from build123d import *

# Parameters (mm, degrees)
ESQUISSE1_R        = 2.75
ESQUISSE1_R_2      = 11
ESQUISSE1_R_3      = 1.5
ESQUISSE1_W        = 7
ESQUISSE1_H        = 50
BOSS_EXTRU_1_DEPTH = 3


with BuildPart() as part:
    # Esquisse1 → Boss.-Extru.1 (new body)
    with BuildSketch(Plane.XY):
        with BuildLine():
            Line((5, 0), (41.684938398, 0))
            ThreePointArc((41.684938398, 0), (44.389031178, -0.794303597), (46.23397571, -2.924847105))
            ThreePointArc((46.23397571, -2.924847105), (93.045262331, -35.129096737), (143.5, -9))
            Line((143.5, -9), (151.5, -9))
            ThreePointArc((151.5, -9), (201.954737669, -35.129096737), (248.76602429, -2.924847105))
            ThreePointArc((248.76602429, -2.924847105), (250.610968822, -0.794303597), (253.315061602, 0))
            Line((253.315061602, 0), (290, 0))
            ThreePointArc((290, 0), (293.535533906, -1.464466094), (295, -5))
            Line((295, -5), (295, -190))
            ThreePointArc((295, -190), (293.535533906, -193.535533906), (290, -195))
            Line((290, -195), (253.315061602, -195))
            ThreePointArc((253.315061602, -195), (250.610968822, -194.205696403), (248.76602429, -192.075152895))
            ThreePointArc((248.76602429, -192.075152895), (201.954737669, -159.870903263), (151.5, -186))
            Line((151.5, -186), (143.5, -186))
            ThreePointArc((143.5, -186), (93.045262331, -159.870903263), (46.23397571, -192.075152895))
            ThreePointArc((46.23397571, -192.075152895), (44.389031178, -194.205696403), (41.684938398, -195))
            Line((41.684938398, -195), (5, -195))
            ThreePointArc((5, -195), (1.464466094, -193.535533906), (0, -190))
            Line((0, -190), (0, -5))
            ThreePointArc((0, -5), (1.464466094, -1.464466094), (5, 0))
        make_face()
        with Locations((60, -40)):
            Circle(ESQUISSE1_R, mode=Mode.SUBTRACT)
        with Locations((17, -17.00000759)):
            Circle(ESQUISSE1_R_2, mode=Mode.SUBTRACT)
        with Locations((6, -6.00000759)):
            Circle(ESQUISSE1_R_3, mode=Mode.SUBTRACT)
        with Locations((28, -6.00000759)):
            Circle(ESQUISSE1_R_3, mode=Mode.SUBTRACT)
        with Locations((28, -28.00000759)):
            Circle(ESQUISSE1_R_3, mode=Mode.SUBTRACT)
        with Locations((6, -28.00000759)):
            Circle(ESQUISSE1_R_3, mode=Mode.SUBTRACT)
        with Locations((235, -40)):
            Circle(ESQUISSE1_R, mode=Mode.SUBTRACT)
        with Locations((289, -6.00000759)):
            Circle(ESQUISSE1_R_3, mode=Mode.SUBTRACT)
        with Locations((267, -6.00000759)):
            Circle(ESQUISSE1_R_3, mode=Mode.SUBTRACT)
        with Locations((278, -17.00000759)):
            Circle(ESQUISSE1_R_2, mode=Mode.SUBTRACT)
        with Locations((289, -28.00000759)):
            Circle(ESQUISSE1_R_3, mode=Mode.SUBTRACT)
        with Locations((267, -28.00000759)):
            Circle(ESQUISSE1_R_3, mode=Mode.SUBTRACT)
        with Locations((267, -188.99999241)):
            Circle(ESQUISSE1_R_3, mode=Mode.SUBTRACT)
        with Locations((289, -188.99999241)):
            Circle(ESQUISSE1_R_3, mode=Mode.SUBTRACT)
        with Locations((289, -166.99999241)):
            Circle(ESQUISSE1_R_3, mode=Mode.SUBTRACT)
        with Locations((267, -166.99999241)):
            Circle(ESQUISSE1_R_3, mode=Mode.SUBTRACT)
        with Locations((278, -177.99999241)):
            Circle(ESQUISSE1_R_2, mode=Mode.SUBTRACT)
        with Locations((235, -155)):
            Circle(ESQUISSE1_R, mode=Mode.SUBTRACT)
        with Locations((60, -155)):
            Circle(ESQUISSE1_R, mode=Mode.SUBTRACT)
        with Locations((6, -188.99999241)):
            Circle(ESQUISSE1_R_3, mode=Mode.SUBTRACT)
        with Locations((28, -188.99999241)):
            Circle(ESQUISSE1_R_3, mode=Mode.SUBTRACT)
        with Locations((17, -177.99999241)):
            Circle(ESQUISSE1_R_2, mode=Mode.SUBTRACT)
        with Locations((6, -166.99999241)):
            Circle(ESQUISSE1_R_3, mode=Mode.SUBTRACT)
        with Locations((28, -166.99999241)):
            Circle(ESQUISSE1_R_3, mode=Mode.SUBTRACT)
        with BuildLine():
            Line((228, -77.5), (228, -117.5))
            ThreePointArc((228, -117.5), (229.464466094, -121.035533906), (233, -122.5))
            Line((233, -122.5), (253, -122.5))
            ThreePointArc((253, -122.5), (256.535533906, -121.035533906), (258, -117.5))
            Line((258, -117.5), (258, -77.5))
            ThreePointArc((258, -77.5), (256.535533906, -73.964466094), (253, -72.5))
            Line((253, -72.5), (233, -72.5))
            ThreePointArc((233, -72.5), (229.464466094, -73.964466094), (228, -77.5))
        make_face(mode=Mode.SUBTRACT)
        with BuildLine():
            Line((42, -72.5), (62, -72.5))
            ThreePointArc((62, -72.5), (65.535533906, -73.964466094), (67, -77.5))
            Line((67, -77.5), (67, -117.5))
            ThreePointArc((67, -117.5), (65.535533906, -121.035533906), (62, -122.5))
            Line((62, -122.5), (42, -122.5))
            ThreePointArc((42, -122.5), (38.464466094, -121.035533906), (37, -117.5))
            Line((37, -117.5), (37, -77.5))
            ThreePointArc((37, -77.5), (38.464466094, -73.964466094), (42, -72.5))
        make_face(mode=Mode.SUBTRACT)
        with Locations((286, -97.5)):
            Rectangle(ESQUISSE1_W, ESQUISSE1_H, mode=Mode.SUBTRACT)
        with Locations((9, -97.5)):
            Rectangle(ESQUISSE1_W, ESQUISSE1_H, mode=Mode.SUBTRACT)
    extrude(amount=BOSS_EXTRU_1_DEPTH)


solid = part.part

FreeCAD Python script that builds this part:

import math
import FreeCAD as App
import Part
import Sketcher

doc = App.newDocument("Part")
body = doc.addObject("PartDesign::Body", "Body")

# Sketch on XY plane
sketch1 = body.newObject("Sketcher::SketchObject", "Sketch")
sketch1.AttachmentSupport = (doc.getObject("XY_Plane"), [""])
sketch1.MapMode = "FlatFace"
sketch1.addGeometry(Part.LineSegment(App.Vector(41.7, 0, 0), App.Vector(5, 0, 0)), False)
sketch1.addGeometry(Part.ArcOfCircle(Part.Circle(App.Vector(5, -5, 0), App.Vector(0, 0, 1), 5), math.radians(90), math.radians(180)), False)
sketch1.addGeometry(Part.LineSegment(App.Vector(0, -5, 0), App.Vector(0, -190, 0)), False)
sketch1.addGeometry(Part.ArcOfCircle(Part.Circle(App.Vector(5, -190, 0), App.Vector(0, 0, 1), 5), math.radians(180), math.radians(270)), False)
sketch1.addGeometry(Part.LineSegment(App.Vector(5, -195, 0), App.Vector(41.7, -195, 0)), False)
sketch1.addGeometry(Part.ArcOfCircle(Part.Circle(App.Vector(41.7, -190, 0), App.Vector(0, 0, 1), 5), math.radians(-90), math.radians(-25)), False)
sketch1.addGeometry(Part.ArcOfCircle(Part.Circle(App.Vector(96.5, -215, 0), App.Vector(0, 0, 1), 55.2), math.radians(32), math.radians(155)), False)
sketch1.addGeometry(Part.LineSegment(App.Vector(143.5, -186, 0), App.Vector(151.5, -186, 0)), False)
sketch1.addGeometry(Part.ArcOfCircle(Part.Circle(App.Vector(198.5, -215, 0), App.Vector(0, 0, 1), 55.2), math.radians(25), math.radians(148)), False)
sketch1.addGeometry(Part.ArcOfCircle(Part.Circle(App.Vector(253.3, -190, 0), App.Vector(0, 0, 1), 5), math.radians(-155), math.radians(-90)), False)
sketch1.addGeometry(Part.LineSegment(App.Vector(253.3, -195, 0), App.Vector(290, -195, 0)), False)
sketch1.addGeometry(Part.ArcOfCircle(Part.Circle(App.Vector(290, -190, 0), App.Vector(0, 0, 1), 5), math.radians(-90), math.radians(0)), False)
sketch1.addGeometry(Part.LineSegment(App.Vector(295, -190, 0), App.Vector(295, -5, 0)), False)
sketch1.addGeometry(Part.ArcOfCircle(Part.Circle(App.Vector(290, -5, 0), App.Vector(0, 0, 1), 5), math.radians(0), math.radians(90)), False)
sketch1.addGeometry(Part.LineSegment(App.Vector(290, 0, 0), App.Vector(253.3, 0, 0)), False)
sketch1.addGeometry(Part.ArcOfCircle(Part.Circle(App.Vector(253.3, -5, 0), App.Vector(0, 0, 1), 5), math.radians(90), math.radians(155)), False)
sketch1.addGeometry(Part.ArcOfCircle(Part.Circle(App.Vector(198.5, 20, 0), App.Vector(0, 0, 1), 55.2), math.radians(-148), math.radians(-25)), False)
sketch1.addGeometry(Part.LineSegment(App.Vector(151.5, -9, 0), App.Vector(143.5, -9, 0)), False)
sketch1.addGeometry(Part.ArcOfCircle(Part.Circle(App.Vector(96.5, 20, 0), App.Vector(0, 0, 1), 55.2), math.radians(-155), math.radians(-32)), False)
sketch1.addGeometry(Part.ArcOfCircle(Part.Circle(App.Vector(41.7, -5, 0), App.Vector(0, 0, 1), 5), math.radians(25), math.radians(90)), False)
sketch1.addGeometry(Part.Circle(App.Vector(289, -189, 0), App.Vector(0, 0, 1), 1.5), False)
sketch1.addGeometry(Part.Circle(App.Vector(267, -189, 0), App.Vector(0, 0, 1), 1.5), False)
sketch1.addGeometry(Part.Circle(App.Vector(278, -178, 0), App.Vector(0, 0, 1), 11), False)
sketch1.addGeometry(Part.Circle(App.Vector(289, -167, 0), App.Vector(0, 0, 1), 1.5), False)
sketch1.addGeometry(Part.Circle(App.Vector(267, -167, 0), App.Vector(0, 0, 1), 1.5), False)
sketch1.addGeometry(Part.Circle(App.Vector(235, -155, 0), App.Vector(0, 0, 1), 2.8), False)
sketch1.addGeometry(Part.Circle(App.Vector(28, -189, 0), App.Vector(0, 0, 1), 1.5), False)
sketch1.addGeometry(Part.Circle(App.Vector(6, -189, 0), App.Vector(0, 0, 1), 1.5), False)
sketch1.addGeometry(Part.Circle(App.Vector(17, -178, 0), App.Vector(0, 0, 1), 11), False)
sketch1.addGeometry(Part.Circle(App.Vector(60, -155, 0), App.Vector(0, 0, 1), 2.8), False)
sketch1.addGeometry(Part.Circle(App.Vector(28, -167, 0), App.Vector(0, 0, 1), 1.5), False)
sketch1.addGeometry(Part.Circle(App.Vector(6, -167, 0), App.Vector(0, 0, 1), 1.5), False)
sketch1.addGeometry(Part.LineSegment(App.Vector(282.5, -122.5, 0), App.Vector(282.5, -72.5, 0)), False)
sketch1.addGeometry(Part.LineSegment(App.Vector(282.5, -72.5, 0), App.Vector(289.5, -72.5, 0)), False)
sketch1.addGeometry(Part.LineSegment(App.Vector(289.5, -72.5, 0), App.Vector(289.5, -122.5, 0)), False)
sketch1.addGeometry(Part.LineSegment(App.Vector(289.5, -122.5, 0), App.Vector(282.5, -122.5, 0)), False)
sketch1.addGeometry(Part.ArcOfCircle(Part.Circle(App.Vector(233, -77.5, 0), App.Vector(0, 0, 1), 5), math.radians(90), math.radians(180)), False)
sketch1.addGeometry(Part.LineSegment(App.Vector(233, -72.5, 0), App.Vector(253, -72.5, 0)), False)
sketch1.addGeometry(Part.ArcOfCircle(Part.Circle(App.Vector(253, -77.5, 0), App.Vector(0, 0, 1), 5), math.radians(0), math.radians(90)), False)
sketch1.addGeometry(Part.LineSegment(App.Vector(258, -77.5, 0), App.Vector(258, -117.5, 0)), False)
sketch1.addGeometry(Part.ArcOfCircle(Part.Circle(App.Vector(253, -117.5, 0), App.Vector(0, 0, 1), 5), math.radians(-90), math.radians(0)), False)
sketch1.addGeometry(Part.LineSegment(App.Vector(253, -122.5, 0), App.Vector(233, -122.5, 0)), False)
sketch1.addGeometry(Part.ArcOfCircle(Part.Circle(App.Vector(233, -117.5, 0), App.Vector(0, 0, 1), 5), math.radians(180), math.radians(270)), False)
sketch1.addGeometry(Part.LineSegment(App.Vector(228, -117.5, 0), App.Vector(228, -77.5, 0)), False)
sketch1.addGeometry(Part.Circle(App.Vector(289, -28, 0), App.Vector(0, 0, 1), 1.5), False)
sketch1.addGeometry(Part.Circle(App.Vector(267, -28, 0), App.Vector(0, 0, 1), 1.5), False)
sketch1.addGeometry(Part.Circle(App.Vector(235, -40, 0), App.Vector(0, 0, 1), 2.8), False)
sketch1.addGeometry(Part.Circle(App.Vector(278, -17, 0), App.Vector(0, 0, 1), 11), False)
sketch1.addGeometry(Part.Circle(App.Vector(289, -6, 0), App.Vector(0, 0, 1), 1.5), False)
sketch1.addGeometry(Part.Circle(App.Vector(267, -6, 0), App.Vector(0, 0, 1), 1.5), False)
sketch1.addGeometry(Part.LineSegment(App.Vector(42, -72.5, 0), App.Vector(62, -72.5, 0)), False)
sketch1.addGeometry(Part.ArcOfCircle(Part.Circle(App.Vector(62, -77.5, 0), App.Vector(0, 0, 1), 5), math.radians(0), math.radians(90)), False)
sketch1.addGeometry(Part.LineSegment(App.Vector(67, -77.5, 0), App.Vector(67, -117.5, 0)), False)
sketch1.addGeometry(Part.ArcOfCircle(Part.Circle(App.Vector(62, -117.5, 0), App.Vector(0, 0, 1), 5), math.radians(-90), math.radians(0)), False)
sketch1.addGeometry(Part.LineSegment(App.Vector(62, -122.5, 0), App.Vector(42, -122.5, 0)), False)
sketch1.addGeometry(Part.ArcOfCircle(Part.Circle(App.Vector(42, -117.5, 0), App.Vector(0, 0, 1), 5), math.radians(180), math.radians(270)), False)
sketch1.addGeometry(Part.LineSegment(App.Vector(37, -117.5, 0), App.Vector(37, -77.5, 0)), False)
sketch1.addGeometry(Part.ArcOfCircle(Part.Circle(App.Vector(42, -77.5, 0), App.Vector(0, 0, 1), 5), math.radians(90), math.radians(180)), False)
sketch1.addGeometry(Part.LineSegment(App.Vector(5.5, -122.5, 0), App.Vector(5.5, -72.5, 0)), False)
sketch1.addGeometry(Part.LineSegment(App.Vector(5.5, -72.5, 0), App.Vector(12.5, -72.5, 0)), False)
sketch1.addGeometry(Part.LineSegment(App.Vector(12.5, -72.5, 0), App.Vector(12.5, -122.5, 0)), False)
sketch1.addGeometry(Part.LineSegment(App.Vector(12.5, -122.5, 0), App.Vector(5.5, -122.5, 0)), False)
sketch1.addGeometry(Part.Circle(App.Vector(60, -40, 0), App.Vector(0, 0, 1), 2.8), False)
sketch1.addGeometry(Part.Circle(App.Vector(28, -28, 0), App.Vector(0, 0, 1), 1.5), False)
sketch1.addGeometry(Part.Circle(App.Vector(6, -28, 0), App.Vector(0, 0, 1), 1.5), False)
sketch1.addGeometry(Part.Circle(App.Vector(17, -17, 0), App.Vector(0, 0, 1), 11), False)
sketch1.addGeometry(Part.Circle(App.Vector(28, -6, 0), App.Vector(0, 0, 1), 1.5), False)
sketch1.addGeometry(Part.Circle(App.Vector(6, -6, 0), App.Vector(0, 0, 1), 1.5), False)
sketch1.addConstraint(Sketcher.Constraint("Tangent", 0, 2, 1, 1))
sketch1.addConstraint(Sketcher.Constraint("Tangent", 1, 2, 2, 1))
sketch1.addConstraint(Sketcher.Constraint("Tangent", 2, 2, 3, 1))
sketch1.addConstraint(Sketcher.Constraint("Tangent", 3, 2, 4, 1))
sketch1.addConstraint(Sketcher.Constraint("Tangent", 4, 2, 5, 1))
sketch1.addConstraint(Sketcher.Constraint("Tangent", 5, 2, 6, 2))
sketch1.addConstraint(Sketcher.Constraint("Coincident", 6, 1, 7, 1))
sketch1.addConstraint(Sketcher.Constraint("Coincident", 7, 2, 8, 2))
sketch1.addConstraint(Sketcher.Constraint("Tangent", 8, 1, 9, 1))
sketch1.addConstraint(Sketcher.Constraint("Tangent", 9, 2, 10, 1))
sketch1.addConstraint(Sketcher.Constraint("Tangent", 10, 2, 11, 1))
sketch1.addConstraint(Sketcher.Constraint("Tangent", 11, 2, 12, 1))
sketch1.addConstraint(Sketcher.Constraint("Tangent", 12, 2, 13, 1))
sketch1.addConstraint(Sketcher.Constraint("Tangent", 13, 2, 14, 1))
sketch1.addConstraint(Sketcher.Constraint("Tangent", 14, 2, 15, 1))
sketch1.addConstraint(Sketcher.Constraint("Tangent", 15, 2, 16, 2))
sketch1.addConstraint(Sketcher.Constraint("Coincident", 16, 1, 17, 1))
sketch1.addConstraint(Sketcher.Constraint("Coincident", 17, 2, 18, 2))
sketch1.addConstraint(Sketcher.Constraint("Tangent", 18, 1, 19, 1))
sketch1.addConstraint(Sketcher.Constraint("Tangent", 19, 2, 0, 1))
sketch1.addConstraint(Sketcher.Constraint("Coincident", 32, 2, 33, 1))
sketch1.addConstraint(Sketcher.Constraint("Coincident", 33, 2, 34, 1))
sketch1.addConstraint(Sketcher.Constraint("Coincident", 34, 2, 35, 1))
sketch1.addConstraint(Sketcher.Constraint("Coincident", 35, 2, 32, 1))
sketch1.addConstraint(Sketcher.Constraint("Tangent", 36, 1, 37, 1))
sketch1.addConstraint(Sketcher.Constraint("Tangent", 37, 2, 38, 2))
sketch1.addConstraint(Sketcher.Constraint("Tangent", 38, 1, 39, 1))
sketch1.addConstraint(Sketcher.Constraint("Tangent", 39, 2, 40, 2))
sketch1.addConstraint(Sketcher.Constraint("Tangent", 40, 1, 41, 1))
sketch1.addConstraint(Sketcher.Constraint("Tangent", 41, 2, 42, 2))
sketch1.addConstraint(Sketcher.Constraint("Tangent", 42, 1, 43, 1))
sketch1.addConstraint(Sketcher.Constraint("Tangent", 43, 2, 36, 2))
sketch1.addConstraint(Sketcher.Constraint("Tangent", 50, 2, 51, 2))
sketch1.addConstraint(Sketcher.Constraint("Tangent", 51, 1, 52, 1))
sketch1.addConstraint(Sketcher.Constraint("Tangent", 52, 2, 53, 2))
sketch1.addConstraint(Sketcher.Constraint("Tangent", 53, 1, 54, 1))
sketch1.addConstraint(Sketcher.Constraint("Tangent", 54, 2, 55, 2))
sketch1.addConstraint(Sketcher.Constraint("Tangent", 55, 1, 56, 1))
sketch1.addConstraint(Sketcher.Constraint("Tangent", 56, 2, 57, 2))
sketch1.addConstraint(Sketcher.Constraint("Tangent", 57, 1, 50, 1))
sketch1.addConstraint(Sketcher.Constraint("Coincident", 58, 2, 59, 1))
sketch1.addConstraint(Sketcher.Constraint("Coincident", 59, 2, 60, 1))
sketch1.addConstraint(Sketcher.Constraint("Coincident", 60, 2, 61, 1))
sketch1.addConstraint(Sketcher.Constraint("Coincident", 61, 2, 58, 1))
sketch1.addConstraint(Sketcher.Constraint("Horizontal", 0))
sketch1.addConstraint(Sketcher.Constraint("Vertical", 2))
sketch1.addConstraint(Sketcher.Constraint("Horizontal", 4))
sketch1.addConstraint(Sketcher.Constraint("Horizontal", 7))
sketch1.addConstraint(Sketcher.Constraint("Horizontal", 10))
sketch1.addConstraint(Sketcher.Constraint("Vertical", 12))
sketch1.addConstraint(Sketcher.Constraint("Horizontal", 14))
sketch1.addConstraint(Sketcher.Constraint("Horizontal", 17))
sketch1.addConstraint(Sketcher.Constraint("Vertical", 32))
sketch1.addConstraint(Sketcher.Constraint("Horizontal", 33))
sketch1.addConstraint(Sketcher.Constraint("Vertical", 34))
sketch1.addConstraint(Sketcher.Constraint("Horizontal", 35))
sketch1.addConstraint(Sketcher.Constraint("Horizontal", 37))
sketch1.addConstraint(Sketcher.Constraint("Vertical", 39))
sketch1.addConstraint(Sketcher.Constraint("Horizontal", 41))
sketch1.addConstraint(Sketcher.Constraint("Vertical", 43))
sketch1.addConstraint(Sketcher.Constraint("Horizontal", 50))
sketch1.addConstraint(Sketcher.Constraint("Vertical", 52))
sketch1.addConstraint(Sketcher.Constraint("Horizontal", 54))
sketch1.addConstraint(Sketcher.Constraint("Vertical", 56))
sketch1.addConstraint(Sketcher.Constraint("Vertical", 58))
sketch1.addConstraint(Sketcher.Constraint("Horizontal", 59))
sketch1.addConstraint(Sketcher.Constraint("Vertical", 60))
sketch1.addConstraint(Sketcher.Constraint("Horizontal", 61))
sketch1.addConstraint(Sketcher.Constraint("Equal", 1, 3))
sketch1.addConstraint(Sketcher.Constraint("Equal", 3, 5))
sketch1.addConstraint(Sketcher.Constraint("Equal", 6, 8))
sketch1.addConstraint(Sketcher.Constraint("Equal", 5, 9))
sketch1.addConstraint(Sketcher.Constraint("Equal", 9, 11))
sketch1.addConstraint(Sketcher.Constraint("Equal", 11, 13))
sketch1.addConstraint(Sketcher.Constraint("Equal", 13, 15))
sketch1.addConstraint(Sketcher.Constraint("Equal", 8, 16))
sketch1.addConstraint(Sketcher.Constraint("Equal", 16, 18))
sketch1.addConstraint(Sketcher.Constraint("Equal", 15, 19))
sketch1.addConstraint(Sketcher.Constraint("Equal", 20, 21))
sketch1.addConstraint(Sketcher.Constraint("Equal", 21, 23))
sketch1.addConstraint(Sketcher.Constraint("Equal", 23, 24))
sketch1.addConstraint(Sketcher.Constraint("Equal", 24, 26))
sketch1.addConstraint(Sketcher.Constraint("Equal", 26, 27))
sketch1.addConstraint(Sketcher.Constraint("Equal", 22, 28))
sketch1.addConstraint(Sketcher.Constraint("Equal", 25, 29))
sketch1.addConstraint(Sketcher.Constraint("Equal", 27, 30))
sketch1.addConstraint(Sketcher.Constraint("Equal", 30, 31))
sketch1.addConstraint(Sketcher.Constraint("Equal", 19, 36))
sketch1.addConstraint(Sketcher.Constraint("Equal", 36, 38))
sketch1.addConstraint(Sketcher.Constraint("Equal", 38, 40))
sketch1.addConstraint(Sketcher.Constraint("Equal", 40, 42))
sketch1.addConstraint(Sketcher.Constraint("Equal", 31, 44))
sketch1.addConstraint(Sketcher.Constraint("Equal", 44, 45))
sketch1.addConstraint(Sketcher.Constraint("Equal", 29, 46))
sketch1.addConstraint(Sketcher.Constraint("Equal", 28, 47))
sketch1.addConstraint(Sketcher.Constraint("Equal", 45, 48))
sketch1.addConstraint(Sketcher.Constraint("Equal", 48, 49))
sketch1.addConstraint(Sketcher.Constraint("Equal", 42, 51))
sketch1.addConstraint(Sketcher.Constraint("Equal", 51, 53))
sketch1.addConstraint(Sketcher.Constraint("Equal", 53, 55))
sketch1.addConstraint(Sketcher.Constraint("Equal", 55, 57))
sketch1.addConstraint(Sketcher.Constraint("Equal", 46, 62))
sketch1.addConstraint(Sketcher.Constraint("Equal", 49, 63))
sketch1.addConstraint(Sketcher.Constraint("Equal", 63, 64))
sketch1.addConstraint(Sketcher.Constraint("Equal", 47, 65))
sketch1.addConstraint(Sketcher.Constraint("Equal", 64, 66))
sketch1.addConstraint(Sketcher.Constraint("Equal", 66, 67))
sketch1.addConstraint(Sketcher.Constraint("PointOnObject", 0, 2, -1))
sketch1.addConstraint(Sketcher.Constraint("PointOnObject", 1, 2, -2))
sketch1.addConstraint(Sketcher.Constraint("PointOnObject", 13, 2, -1))
sketch1.addConstraint(Sketcher.Constraint("Horizontal", 6, 3, 8, 3))
sketch1.addConstraint(Sketcher.Constraint("Horizontal", 5, 3, 9, 3))
sketch1.addConstraint(Sketcher.Constraint("Horizontal", 16, 3, 18, 3))
sketch1.addConstraint(Sketcher.Constraint("Horizontal", 20, 3, 21, 3))
sketch1.addConstraint(Sketcher.Constraint("Horizontal", 23, 3, 24, 3))
sketch1.addConstraint(Sketcher.Constraint("Horizontal", 21, 3, 26, 3))
sketch1.addConstraint(Sketcher.Constraint("Horizontal", 26, 3, 27, 3))
sketch1.addConstraint(Sketcher.Constraint("Horizontal", 22, 3, 28, 3))
sketch1.addConstraint(Sketcher.Constraint("Horizontal", 25, 3, 29, 3))
sketch1.addConstraint(Sketcher.Constraint("Horizontal", 24, 3, 30, 3))
sketch1.addConstraint(Sketcher.Constraint("Horizontal", 30, 3, 31, 3))
sketch1.addConstraint(Sketcher.Constraint("Horizontal", 44, 3, 45, 3))
sketch1.addConstraint(Sketcher.Constraint("Horizontal", 48, 3, 49, 3))
sketch1.addConstraint(Sketcher.Constraint("Horizontal", 38, 3, 51, 3))
sketch1.addConstraint(Sketcher.Constraint("Horizontal", 42, 3, 53, 3))
sketch1.addConstraint(Sketcher.Constraint("Horizontal", 46, 3, 62, 3))
sketch1.addConstraint(Sketcher.Constraint("Horizontal", 45, 3, 63, 3))
sketch1.addConstraint(Sketcher.Constraint("Horizontal", 63, 3, 64, 3))
sketch1.addConstraint(Sketcher.Constraint("Horizontal", 47, 3, 65, 3))
sketch1.addConstraint(Sketcher.Constraint("Horizontal", 49, 3, 66, 3))
sketch1.addConstraint(Sketcher.Constraint("Horizontal", 66, 3, 67, 3))
sketch1.addConstraint(Sketcher.Constraint("Horizontal", 33, 2, 36, 1))
sketch1.addConstraint(Sketcher.Constraint("Horizontal", 35, 2, 40, 1))
sketch1.addConstraint(Sketcher.Constraint("Horizontal", 57, 1, 58, 2))
sketch1.addConstraint(Sketcher.Constraint("Horizontal", 54, 2, 60, 2))
sketch1.addConstraint(Sketcher.Constraint("Vertical", 9, 3, 15, 3))
sketch1.addConstraint(Sketcher.Constraint("Vertical", 8, 3, 16, 3))
sketch1.addConstraint(Sketcher.Constraint("Vertical", 6, 3, 18, 3))
sketch1.addConstraint(Sketcher.Constraint("Vertical", 20, 3, 23, 3))
sketch1.addConstraint(Sketcher.Constraint("Vertical", 21, 3, 24, 3))
sketch1.addConstraint(Sketcher.Constraint("Vertical", 26, 3, 30, 3))
sketch1.addConstraint(Sketcher.Constraint("Vertical", 27, 3, 31, 3))
sketch1.addConstraint(Sketcher.Constraint("Vertical", 23, 3, 44, 3))
sketch1.addConstraint(Sketcher.Constraint("Vertical", 24, 3, 45, 3))
sketch1.addConstraint(Sketcher.Constraint("Vertical", 25, 3, 46, 3))
sketch1.addConstraint(Sketcher.Constraint("Vertical", 22, 3, 47, 3))
sketch1.addConstraint(Sketcher.Constraint("Vertical", 44, 3, 48, 3))
sketch1.addConstraint(Sketcher.Constraint("Vertical", 45, 3, 49, 3))
sketch1.addConstraint(Sketcher.Constraint("Vertical", 29, 3, 62, 3))
sketch1.addConstraint(Sketcher.Constraint("Vertical", 30, 3, 63, 3))
sketch1.addConstraint(Sketcher.Constraint("Vertical", 31, 3, 64, 3))
sketch1.addConstraint(Sketcher.Constraint("Vertical", 28, 3, 65, 3))
sketch1.addConstraint(Sketcher.Constraint("Vertical", 63, 3, 66, 3))
sketch1.addConstraint(Sketcher.Constraint("Vertical", 64, 3, 67, 3))
sketch1.addConstraint(Sketcher.Constraint("Vertical", 7, 2, 16, 1))
sketch1.addConstraint(Sketcher.Constraint("Equal", 4, 10))
sketch1.addConstraint(Sketcher.Constraint("Equal", 41, 50))
sketch1.addConstraint(Sketcher.Constraint("Equal", 35, 59))
sketch1.addConstraint(Sketcher.Constraint("Diameter", 20, 3.0))
sketch1.addConstraint(Sketcher.Constraint("Diameter", 22, 22.0))
sketch1.addConstraint(Sketcher.Constraint("Radius", 1, 5.0))
sketch1.addConstraint(Sketcher.Constraint("Diameter", 25, 5.5))
sketch1.addConstraint(Sketcher.Constraint("DistanceX", 7, 1, 7, 2, 8.0))
sketch1.addConstraint(Sketcher.Constraint("DistanceX", 33, 1, 33, 2, 7.0))
sketch1.addConstraint(Sketcher.Constraint("DistanceX", 37, 1, 37, 2, 20.0))
sketch1.addConstraint(Sketcher.Constraint("DistanceY", 2, 2, 2, 1, 185.0))
sketch1.addConstraint(Sketcher.Constraint("DistanceY", 32, 1, 32, 2, 50.0))
sketch1.addConstraint(Sketcher.Constraint("DistanceY", 6, 3, -1, 1, 215.0))
sketch1.addConstraint(Sketcher.Constraint("DistanceX", -1, 1, 11, 3, 290.0))
sketch1.addConstraint(Sketcher.Constraint("DistanceX", -1, 1, 20, 3, 289.0))
sketch1.addConstraint(Sketcher.Constraint("DistanceX", -1, 1, 21, 3, 267.0))
sketch1.addConstraint(Sketcher.Constraint("DistanceX", -1, 1, 22, 3, 278.0))
sketch1.addConstraint(Sketcher.Constraint("DistanceX", -1, 1, 25, 3, 235.0))
sketch1.addConstraint(Sketcher.Constraint("DistanceY", 25, 3, -1, 1, 155.0))
sketch1.addConstraint(Sketcher.Constraint("DistanceX", -1, 1, 26, 3, 28.0))
sketch1.addConstraint(Sketcher.Constraint("DistanceX", -1, 1, 27, 3, 6.0))
sketch1.addConstraint(Sketcher.Constraint("DistanceX", -1, 1, 28, 3, 17.0))
sketch1.addConstraint(Sketcher.Constraint("DistanceX", -1, 1, 29, 3, 60.0))
sketch1.addConstraint(Sketcher.Constraint("DistanceX", -1, 1, 36, 3, 233.0))
sketch1.addConstraint(Sketcher.Constraint("DistanceY", 46, 3, -1, 1, 40.0))
sketch1.addConstraint(Sketcher.Constraint("DistanceX", -1, 1, 51, 3, 62.0))
sketch1.addConstraint(Sketcher.Constraint("DistanceY", 6, 1, -1, 1, 186.0))
sketch1.addConstraint(Sketcher.Constraint("DistanceY", 36, 3, -1, 1, 77.5))
sketch1.addConstraint(Sketcher.Constraint("DistanceX", -1, 1, 32, 2, 282.5))
sketch1.addConstraint(Sketcher.Constraint("DistanceX", -1, 1, 58, 2, 5.5))
sketch1.addConstraint(Sketcher.Constraint("Radius", 6, 55.236525))
sketch1.addConstraint(Sketcher.Constraint("DistanceY", 20, 3, -1, 1, 188.999992))
sketch1.addConstraint(Sketcher.Constraint("DistanceY", 22, 3, -1, 1, 177.999992))
sketch1.addConstraint(Sketcher.Constraint("DistanceY", 23, 3, -1, 1, 166.999992))
sketch1.addConstraint(Sketcher.Constraint("DistanceY", 44, 3, -1, 1, 28.000008))
sketch1.addConstraint(Sketcher.Constraint("DistanceY", 47, 3, -1, 1, 17.000008))
sketch1.addConstraint(Sketcher.Constraint("DistanceY", 48, 3, -1, 1, 6.000008))
pad1 = body.newObject("PartDesign::Pad", "Pad")
pad1.Profile = sketch1
pad1.Length = 3

doc.recompute()
